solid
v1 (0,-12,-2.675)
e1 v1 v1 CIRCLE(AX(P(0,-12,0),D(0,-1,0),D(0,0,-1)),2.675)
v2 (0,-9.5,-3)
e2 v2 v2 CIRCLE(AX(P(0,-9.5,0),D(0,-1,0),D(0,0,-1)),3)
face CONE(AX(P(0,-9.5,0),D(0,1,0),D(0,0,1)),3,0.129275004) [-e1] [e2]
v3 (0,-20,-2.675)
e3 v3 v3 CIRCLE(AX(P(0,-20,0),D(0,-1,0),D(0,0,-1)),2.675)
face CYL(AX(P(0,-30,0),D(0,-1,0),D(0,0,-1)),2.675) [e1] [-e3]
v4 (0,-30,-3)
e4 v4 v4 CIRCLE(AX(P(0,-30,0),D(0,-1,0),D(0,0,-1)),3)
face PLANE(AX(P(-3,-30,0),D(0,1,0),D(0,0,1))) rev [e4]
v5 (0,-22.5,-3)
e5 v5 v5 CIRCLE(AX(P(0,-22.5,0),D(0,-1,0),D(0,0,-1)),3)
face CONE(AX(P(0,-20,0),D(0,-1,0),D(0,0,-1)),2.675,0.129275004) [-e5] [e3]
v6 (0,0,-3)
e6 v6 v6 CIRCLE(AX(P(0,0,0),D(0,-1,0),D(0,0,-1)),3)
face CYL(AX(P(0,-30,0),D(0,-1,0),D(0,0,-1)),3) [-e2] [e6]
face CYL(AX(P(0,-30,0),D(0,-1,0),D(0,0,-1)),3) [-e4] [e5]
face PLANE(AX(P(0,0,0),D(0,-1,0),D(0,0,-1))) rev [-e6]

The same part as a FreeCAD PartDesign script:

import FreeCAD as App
import Part
import Sketcher

doc = App.newDocument("Part")
body = doc.addObject("PartDesign::Body", "Body")

sketch1 = body.newObject("Sketcher::SketchObject", "Sketch")
sketch1.AttachmentSupport = (doc.getObject("XY_Plane"), [""])
sketch1.MapMode = "FlatFace"
sketch1.addGeometry([
    Part.LineSegment(App.Vector(0, 0, 0), App.Vector(-3, 0, 0)),
    Part.LineSegment(App.Vector(-3, 0, 0), App.Vector(-3, -9.5, 0)),
    Part.LineSegment(App.Vector(-3, -9.5, 0), App.Vector(-2.675, -12, 0)),
    Part.LineSegment(App.Vector(-2.675, -12, 0), App.Vector(-2.675, -20, 0)),
    Part.LineSegment(App.Vector(-2.675, -20, 0), App.Vector(-3, -22.5, 0)),
    Part.LineSegment(App.Vector(-3, -22.5, 0), App.Vector(-3, -30, 0)),
    Part.LineSegment(App.Vector(-3, -30, 0), App.Vector(0, -30, 0)),
    Part.LineSegment(App.Vector(0, -30, 0), App.Vector(0, 0, 0)),
], False)
sketch1.addConstraint([
    Sketcher.Constraint("Coincident", 0, 2, 1, 1),
    Sketcher.Constraint("Coincident", 1, 2, 2, 1),
    Sketcher.Constraint("Coincident", 2, 2, 3, 1),
    Sketcher.Constraint("Coincident", 3, 2, 4, 1),
    Sketcher.Constraint("Coincident", 4, 2, 5, 1),
    Sketcher.Constraint("Coincident", 5, 2, 6, 1),
    Sketcher.Constraint("Coincident", 6, 2, 7, 1),
    Sketcher.Constraint("Coincident", 7, 2, 0, 1),
    Sketcher.Constraint("Horizontal", 0),
    Sketcher.Constraint("Vertical", 1),
    Sketcher.Constraint("Vertical", 3),
    Sketcher.Constraint("Vertical", 5),
    Sketcher.Constraint("Horizontal", 6),
    Sketcher.Constraint("Vertical", 7),
    Sketcher.Constraint("Coincident", 7, 2, -1, 1),
    Sketcher.Constraint("Vertical", 1, 2, 4, 2),
    Sketcher.Constraint("Equal", 2, 4),
    Sketcher.Constraint("DistanceX", 0, 2, 0, 1, 3.0),
    Sketcher.Constraint("DistanceY", 3, 2, 3, 1, 8.0),
    Sketcher.Constraint("DistanceY", 7, 1, 7, 2, 30.0),
    Sketcher.Constraint("DistanceY", 1, 2, 1, 1, 9.5),
    Sketcher.Constraint("DistanceY", 5, 2, 5, 1, 7.5),
    Sketcher.Constraint("DistanceX", 2, 2, -1, 1, 2.675),
])
revolution = body.newObject("PartDesign::Revolution", "Revolution")
revolution.Profile = sketch1
revolution.ReferenceAxis = (sketch1, ["V_Axis"])
revolution.Angle = 360

doc.recompute()
